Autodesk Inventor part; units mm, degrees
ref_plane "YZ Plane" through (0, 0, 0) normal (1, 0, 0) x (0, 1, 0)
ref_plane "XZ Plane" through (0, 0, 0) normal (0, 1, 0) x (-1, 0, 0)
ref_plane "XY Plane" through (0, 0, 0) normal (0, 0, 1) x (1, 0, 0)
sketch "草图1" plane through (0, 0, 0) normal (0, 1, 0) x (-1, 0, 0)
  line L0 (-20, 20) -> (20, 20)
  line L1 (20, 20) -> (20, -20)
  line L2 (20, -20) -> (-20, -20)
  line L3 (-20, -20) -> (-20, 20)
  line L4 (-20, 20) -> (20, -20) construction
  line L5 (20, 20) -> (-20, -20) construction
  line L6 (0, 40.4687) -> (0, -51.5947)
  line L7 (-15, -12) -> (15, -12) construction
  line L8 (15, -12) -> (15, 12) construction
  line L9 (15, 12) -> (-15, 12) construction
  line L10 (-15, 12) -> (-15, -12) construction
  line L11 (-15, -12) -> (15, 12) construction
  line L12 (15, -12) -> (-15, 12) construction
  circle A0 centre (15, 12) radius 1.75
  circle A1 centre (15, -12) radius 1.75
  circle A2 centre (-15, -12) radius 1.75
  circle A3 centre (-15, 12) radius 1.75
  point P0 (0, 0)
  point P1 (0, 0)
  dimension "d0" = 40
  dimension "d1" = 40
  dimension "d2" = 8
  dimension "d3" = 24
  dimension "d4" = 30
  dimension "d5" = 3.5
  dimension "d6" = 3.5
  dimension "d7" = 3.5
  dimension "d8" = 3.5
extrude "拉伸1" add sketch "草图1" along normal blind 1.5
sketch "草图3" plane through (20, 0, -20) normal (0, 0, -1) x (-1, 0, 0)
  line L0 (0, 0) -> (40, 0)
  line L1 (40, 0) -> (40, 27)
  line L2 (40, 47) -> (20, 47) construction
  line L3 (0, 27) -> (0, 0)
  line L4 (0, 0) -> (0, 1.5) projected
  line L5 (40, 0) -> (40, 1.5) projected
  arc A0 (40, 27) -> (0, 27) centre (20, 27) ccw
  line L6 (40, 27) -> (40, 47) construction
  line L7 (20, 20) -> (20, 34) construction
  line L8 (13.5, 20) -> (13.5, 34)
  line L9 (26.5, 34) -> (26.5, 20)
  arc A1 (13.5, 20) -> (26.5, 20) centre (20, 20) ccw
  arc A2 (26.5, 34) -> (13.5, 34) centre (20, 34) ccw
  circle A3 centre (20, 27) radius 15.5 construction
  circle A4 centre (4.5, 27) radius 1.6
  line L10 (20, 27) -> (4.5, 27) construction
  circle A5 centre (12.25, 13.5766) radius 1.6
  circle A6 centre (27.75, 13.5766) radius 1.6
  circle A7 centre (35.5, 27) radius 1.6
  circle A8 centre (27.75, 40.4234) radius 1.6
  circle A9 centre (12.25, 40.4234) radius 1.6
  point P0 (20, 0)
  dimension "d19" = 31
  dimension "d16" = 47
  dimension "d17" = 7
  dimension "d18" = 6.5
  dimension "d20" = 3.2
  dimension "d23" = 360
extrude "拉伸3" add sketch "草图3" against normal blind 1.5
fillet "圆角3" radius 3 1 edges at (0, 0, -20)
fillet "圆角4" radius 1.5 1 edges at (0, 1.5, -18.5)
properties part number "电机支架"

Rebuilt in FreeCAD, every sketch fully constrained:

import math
import FreeCAD as App
import Part
import Sketcher


def edges_at(feature, points):
    """Names of the edges that pass closest to the given points."""
    edges = feature.Shape.Edges
    near = lambda p: min(range(len(edges)), key=lambda i: edges[i].distToShape(Part.Vertex(*p))[0])
    return sorted({f"Edge{near(p) + 1}" for p in points})


def add_polygon(sketch, points):
    """Adds a closed chain of lines whose ends are joined by coincident constraints."""
    first, n = sketch.GeometryCount, len(points)
    for a, b in zip(points, points[1:] + points[:1]):
        sketch.addGeometry(Part.LineSegment(App.Vector(*a, 0), App.Vector(*b, 0)), False)
    for i in range(n):
        sketch.addConstraint(Sketcher.Constraint("Coincident", first + i, 2, first + (i + 1) % n, 1))

doc = App.newDocument("Part")
params = doc.addObject("Spreadsheet::Sheet", "Params")
for row, (alias, value) in enumerate([
    ("sketch1_diameter", "3.5 mm"),
    ("sketch1_width", "40 mm"),
    ("pad1_length", "1.5 mm"),
    ("sketch2_diameter", "3.2 mm"),
    ("sketch2_radius", "6.5 mm"),
    ("sketch2_radius2", "20 mm"),
    ("sketch2_height", "27 mm"),
    ("pad2_length", "1.5 mm"),
    ("fillet_radius", "3 mm"),
    ("fillet2_radius", "1.5 mm"),
], start=1):
    params.set(f"A{row}", alias)
    params.set(f"B{row}", "=" + value)
    params.setAlias(f"B{row}", alias)

body = doc.addObject("PartDesign::Body", "Body")

sketch1 = body.newObject("Sketcher::SketchObject", "Sketch")
sketch1.AttachmentSupport = (doc.getObject("XZ_Plane"), [""])
sketch1.MapMode = "FlatFace"
add_polygon(sketch1, [(20, 20), (20, -20), (-20, -20), (-20, 20)])
sketch1.addGeometry(Part.Circle(App.Vector(15, -12, 0), App.Vector(0, 0, 1), 1.8), False)
sketch1.addGeometry(Part.Circle(App.Vector(15, 12, 0), App.Vector(0, 0, 1), 1.8), False)
sketch1.addGeometry(Part.Circle(App.Vector(-15, 12, 0), App.Vector(0, 0, 1), 1.8), False)
sketch1.addGeometry(Part.Circle(App.Vector(-15, -12, 0), App.Vector(0, 0, 1), 1.8), False)
sketch1.addConstraint(Sketcher.Constraint("Vertical", 0))
sketch1.addConstraint(Sketcher.Constraint("Horizontal", 1))
sketch1.addConstraint(Sketcher.Constraint("Vertical", 2))
sketch1.addConstraint(Sketcher.Constraint("Horizontal", 3))
sketch1.addConstraint(Sketcher.Constraint("Equal", 4, 5))
sketch1.addConstraint(Sketcher.Constraint("Equal", 5, 6))
sketch1.addConstraint(Sketcher.Constraint("Equal", 6, 7))
sketch1.addConstraint(Sketcher.Constraint("Symmetric", 4, 3, 6, 3, -1, 1))
sketch1.addConstraint(Sketcher.Constraint("Symmetric", 5, 3, 7, 3, -1, 1))
sketch1.addConstraint(Sketcher.Constraint("Symmetric", 0, 2, 2, 2, -1, 1))
sketch1.addConstraint(Sketcher.Constraint("Symmetric", 5, 3, 6, 3, -2))
sketch1.addConstraint(Sketcher.Constraint("Equal", 3, 0))
sketch1.addConstraint(Sketcher.Constraint("Diameter", 4, 3.5))
sketch1.addConstraint(Sketcher.Constraint("DistanceX", 1, 2, 1, 1, 40.0))
sketch1.addConstraint(Sketcher.Constraint("DistanceY", 4, 3, 5, 3, 24.0))
sketch1.addConstraint(Sketcher.Constraint("DistanceX", 6, 3, 5, 3, 30.0))
sketch1.setExpression("Constraints[16]", "Params.sketch1_diameter")
sketch1.setExpression("Constraints[17]", "Params.sketch1_width")
pad1 = body.newObject("PartDesign::Pad", "Pad")
pad1.Profile = sketch1
pad1.setExpression("Length", "Params.pad1_length")
pad1.Reversed = True

sketch2 = body.newObject("Sketcher::SketchObject", "Sketch001")
sketch2.AttachmentSupport = (doc.getObject("XY_Plane"), [""])
sketch2.MapMode = "FlatFace"
sketch2.AttachmentOffset = App.Placement(App.Vector(0, 0, -20), App.Rotation())
sketch2.addGeometry(Part.LineSegment(App.Vector(20, 27, 0), App.Vector(20, 0, 0)), False)
sketch2.addGeometry(Part.LineSegment(App.Vector(20, 0, 0), App.Vector(-20, 0, 0)), False)
sketch2.addGeometry(Part.LineSegment(App.Vector(-20, 0, 0), App.Vector(-20, 27, 0)), False)
sketch2.addGeometry(Part.ArcOfCircle(Part.Circle(App.Vector(0, 27, 0), App.Vector(0, 0, 1), 20), math.radians(0), math.radians(180)), False)
sketch2.addGeometry(Part.Circle(App.Vector(7.8, 13.6, 0), App.Vector(0, 0, 1), 1.6), False)
sketch2.addGeometry(Part.Circle(App.Vector(-7.8, 13.6, 0), App.Vector(0, 0, 1), 1.6), False)
sketch2.addGeometry(Part.Circle(App.Vector(15.5, 27, 0), App.Vector(0, 0, 1), 1.6), False)
sketch2.addGeometry(Part.Circle(App.Vector(7.8, 40.4, 0), App.Vector(0, 0, 1), 1.6), False)
sketch2.addGeometry(Part.ArcOfCircle(Part.Circle(App.Vector(0, 20, 0), App.Vector(0, 0, 1), 6.5), math.radians(180), math.radians(360)), False)
sketch2.addGeometry(Part.LineSegment(App.Vector(6.5, 20, 0), App.Vector(6.5, 34, 0)), False)
sketch2.addGeometry(Part.ArcOfCircle(Part.Circle(App.Vector(0, 34, 0), App.Vector(0, 0, 1), 6.5), math.radians(0), math.radians(180)), False)
sketch2.addGeometry(Part.LineSegment(App.Vector(-6.5, 34, 0), App.Vector(-6.5, 20, 0)), False)
sketch2.addGeometry(Part.Circle(App.Vector(-15.5, 27, 0), App.Vector(0, 0, 1), 1.6), False)
sketch2.addGeometry(Part.Circle(App.Vector(-7.8, 40.4, 0), App.Vector(0, 0, 1), 1.6), False)
sketch2.addConstraint(Sketcher.Constraint("Coincident", 0, 2, 1, 1))
sketch2.addConstraint(Sketcher.Constraint("Coincident", 1, 2, 2, 1))
sketch2.addConstraint(Sketcher.Constraint("Tangent", 2, 2, 3, 2))
sketch2.addConstraint(Sketcher.Constraint("Tangent", 3, 1, 0, 1))
sketch2.addConstraint(Sketcher.Constraint("Tangent", 8, 2, 9, 1))
sketch2.addConstraint(Sketcher.Constraint("Tangent", 9, 2, 10, 1))
sketch2.addConstraint(Sketcher.Constraint("Tangent", 10, 2, 11, 1))
sketch2.addConstraint(Sketcher.Constraint("Tangent", 11, 2, 8, 1))
sketch2.addConstraint(Sketcher.Constraint("Vertical", 0))
sketch2.addConstraint(Sketcher.Constraint("Horizontal", 1))
sketch2.addConstraint(Sketcher.Constraint("Vertical", 2))
sketch2.addConstraint(Sketcher.Constraint("Vertical", 9))
sketch2.addConstraint(Sketcher.Constraint("Vertical", 11))
sketch2.addConstraint(Sketcher.Constraint("Equal", 4, 5))
sketch2.addConstraint(Sketcher.Constraint("Equal", 5, 6))
sketch2.addConstraint(Sketcher.Constraint("Equal", 6, 7))
sketch2.addConstraint(Sketcher.Constraint("Equal", 7, 12))
sketch2.addConstraint(Sketcher.Constraint("Equal", 12, 13))
sketch2.addConstraint(Sketcher.Constraint("Symmetric", 0, 2, 1, 2, -1, 1))
sketch2.addConstraint(Sketcher.Constraint("Symmetric", 4, 3, 5, 3, -2))
sketch2.addConstraint(Sketcher.Constraint("Symmetric", 6, 3, 12, 3, -2))
sketch2.addConstraint(Sketcher.Constraint("Symmetric", 7, 3, 13, 3, -2))
sketch2.addConstraint(Sketcher.Constraint("PointOnObject", 8, 3, -2))
sketch2.addConstraint(Sketcher.Constraint("Horizontal", 3, 3, 6, 3))
sketch2.addConstraint(Sketcher.Constraint("Vertical", 4, 3, 7, 3))
sketch2.addConstraint(Sketcher.Constraint("Diameter", 4, 3.2))
sketch2.addConstraint(Sketcher.Constraint("Radius", 8, 6.5))
sketch2.addConstraint(Sketcher.Constraint("Radius", 3, 20.0))
sketch2.addConstraint(Sketcher.Constraint("DistanceY", 8, 3, 3, 3, 7.0))
sketch2.addConstraint(Sketcher.Constraint("DistanceY", 3, 3, 10, 3, 7.0))
sketch2.addConstraint(Sketcher.Constraint("DistanceY", 0, 2, 0, 1, 27.0))
sketch2.addConstraint(Sketcher.Constraint("DistanceX", 8, 2, 6, 3, 9.0))
sketch2.addConstraint(Sketcher.Constraint("DistanceX", 5, 3, 4, 3, 15.5))
sketch2.addConstraint(Sketcher.Constraint("DistanceY", -1, 1, 4, 3, 13.5766))
sketch2.addConstraint(Sketcher.Constraint("DistanceY", -1, 1, 7, 3, 40.4234))
sketch2.setExpression("Constraints[25]", "Params.sketch2_diameter")
sketch2.setExpression("Constraints[26]", "Params.sketch2_radius")
sketch2.setExpression("Constraints[27]", "Params.sketch2_radius2")
sketch2.setExpression("Constraints[30]", "Params.sketch2_height")
pad2 = body.newObject("PartDesign::Pad", "Pad001")
pad2.Profile = sketch2
pad2.setExpression("Length", "Params.pad2_length")
doc.recompute()

fillet = body.newObject("PartDesign::Fillet", "Fillet")
fillet.Base = (pad2, edges_at(pad2, [(0, 0, -20)]))
fillet.setExpression("Radius", "Params.fillet_radius")
doc.recompute()

fillet2 = body.newObject("PartDesign::Fillet", "Fillet001")
fillet2.Base = (fillet, edges_at(fillet, [(0, 1.5, -18.5)]))
fillet2.setExpression("Radius", "Params.fillet2_radius")

doc.recompute()
